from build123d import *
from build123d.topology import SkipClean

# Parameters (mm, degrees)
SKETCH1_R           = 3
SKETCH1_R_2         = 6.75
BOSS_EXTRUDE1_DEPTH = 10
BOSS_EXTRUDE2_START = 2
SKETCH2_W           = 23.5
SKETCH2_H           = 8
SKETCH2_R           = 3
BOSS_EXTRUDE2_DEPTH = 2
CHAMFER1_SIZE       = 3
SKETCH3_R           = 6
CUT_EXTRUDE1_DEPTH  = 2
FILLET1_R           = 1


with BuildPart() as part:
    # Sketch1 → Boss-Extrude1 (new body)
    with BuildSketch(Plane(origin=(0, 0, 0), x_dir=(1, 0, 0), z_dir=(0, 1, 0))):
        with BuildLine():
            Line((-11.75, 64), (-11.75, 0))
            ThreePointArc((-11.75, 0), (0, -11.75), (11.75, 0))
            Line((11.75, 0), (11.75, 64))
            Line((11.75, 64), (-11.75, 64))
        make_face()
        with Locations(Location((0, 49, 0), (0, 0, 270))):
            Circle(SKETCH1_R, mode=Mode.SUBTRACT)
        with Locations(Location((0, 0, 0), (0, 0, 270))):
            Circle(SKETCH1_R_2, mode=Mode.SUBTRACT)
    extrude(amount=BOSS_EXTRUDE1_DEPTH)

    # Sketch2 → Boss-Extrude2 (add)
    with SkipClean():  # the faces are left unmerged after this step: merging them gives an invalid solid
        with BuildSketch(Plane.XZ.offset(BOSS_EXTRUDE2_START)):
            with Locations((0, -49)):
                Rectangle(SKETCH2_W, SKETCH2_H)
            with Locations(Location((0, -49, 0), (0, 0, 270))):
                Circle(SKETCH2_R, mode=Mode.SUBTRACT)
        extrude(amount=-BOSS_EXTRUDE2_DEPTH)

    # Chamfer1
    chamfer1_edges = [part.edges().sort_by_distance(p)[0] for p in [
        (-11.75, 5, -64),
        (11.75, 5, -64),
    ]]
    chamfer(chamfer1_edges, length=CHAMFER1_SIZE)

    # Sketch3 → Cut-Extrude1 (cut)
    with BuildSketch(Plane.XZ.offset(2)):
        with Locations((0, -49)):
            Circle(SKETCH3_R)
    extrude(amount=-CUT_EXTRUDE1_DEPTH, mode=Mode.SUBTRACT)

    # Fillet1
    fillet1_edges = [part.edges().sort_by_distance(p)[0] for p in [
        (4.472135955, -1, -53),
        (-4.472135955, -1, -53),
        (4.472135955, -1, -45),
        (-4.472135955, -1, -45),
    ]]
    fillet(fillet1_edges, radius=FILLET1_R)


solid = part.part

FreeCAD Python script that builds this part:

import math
import FreeCAD as App
import Part
import Sketcher

V = App.Vector
Q = App.Units.Quantity


def edges_at(feature, points):
    """Names of the edges that pass closest to the given points."""
    edges = feature.Shape.Edges
    near = lambda p: min(range(len(edges)), key=lambda i: edges[i].distToShape(Part.Vertex(*p))[0])
    return sorted({f"Edge{near(p) + 1}" for p in points})


def add_polygon(sketch, points):
    """Adds a closed chain of lines whose ends are joined by coincident constraints."""
    first, n = sketch.GeometryCount, len(points)
    for a, b in zip(points, points[1:] + points[:1]):
        sketch.addGeometry(Part.LineSegment(App.Vector(*a, 0), App.Vector(*b, 0)), False)
    for i in range(n):
        sketch.addConstraint(Sketcher.Constraint("Coincident", first + i, 2, first + (i + 1) % n, 1))

doc = App.newDocument("Part")
body = doc.addObject("PartDesign::Body", "Body")

# Sketch on XZ plane
sketch1 = body.newObject("Sketcher::SketchObject", "Sketch")
sketch1.AttachmentSupport = (doc.getObject("XZ_Plane"), [""])
sketch1.MapMode = "FlatFace"
sketch1.addGeometry([
    Part.LineSegment(V(-11.8, -64, 0), V(-11.8, 0, 0)),  # 0
    Part.ArcOfCircle(Part.Circle(V(0, 0, 0), V(0, 0, 1), 11.8), math.radians(0), math.radians(180)),  # 1
    Part.LineSegment(V(11.8, 0, 0), V(11.8, -64, 0)),  # 2
    Part.LineSegment(V(11.8, -64, 0), V(-11.8, -64, 0)),  # 3
    Part.Circle(V(0, 0, 0), V(0, 0, 1), 6.8),  # 4
    Part.Circle(V(0, -49, 0), V(0, 0, 1), 3),  # 5
], False)
sketch1.addConstraint([
    Sketcher.Constraint("Tangent", 0, 2, 1, 2),
    Sketcher.Constraint("Tangent", 1, 1, 2, 1),
    Sketcher.Constraint("Coincident", 2, 2, 3, 1),
    Sketcher.Constraint("Coincident", 3, 2, 0, 1),
    Sketcher.Constraint("Vertical", 0),
    Sketcher.Constraint("Vertical", 2),
    Sketcher.Constraint("Horizontal", 3),
    Sketcher.Constraint("Coincident", 1, 3, -1, 1),
    Sketcher.Constraint("Coincident", 4, 3, -1, 1),
    Sketcher.Constraint("PointOnObject", 5, 3, -2),
    Sketcher.Constraint("Diameter", 5, Q("6 mm")),
    Sketcher.Constraint("Diameter", 4, Q("13.5 mm")),
    Sketcher.Constraint("DistanceY", 0, 1, 0, 2, Q("64 mm")),
    Sketcher.Constraint("Radius", 1, Q("11.75 mm")),
    Sketcher.Constraint("DistanceY", 5, 3, -1, 1, Q("49 mm")),
])
pad1 = body.newObject("PartDesign::Pad", "Pad")
pad1.Profile = sketch1
pad1.Length = 10
pad1.Reversed = True

# Sketch on XZ plane
sketch2 = body.newObject("Sketcher::SketchObject", "Sketch001")
sketch2.AttachmentSupport = (doc.getObject("XZ_Plane"), [""])
sketch2.MapMode = "FlatFace"
sketch2.AttachmentOffset = App.Placement(V(0, 0, 2), App.Rotation())
add_polygon(sketch2, [(-11.8, -45), (-11.8, -53), (11.8, -53), (11.8, -45)])  # lines 0-3
sketch2.addGeometry(Part.Circle(V(0, -49, 0), V(0, 0, 1), 3), False)  # 4
sketch2.addConstraint([
    Sketcher.Constraint("Vertical", 0),
    Sketcher.Constraint("Horizontal", 1),
    Sketcher.Constraint("Vertical", 2),
    Sketcher.Constraint("Horizontal", 3),
    Sketcher.Constraint("PointOnObject", 4, 3, -2),
    Sketcher.Constraint("Diameter", 4, Q("6 mm")),
    Sketcher.Constraint("DistanceY", 0, 2, 0, 1, Q("8 mm")),
    Sketcher.Constraint("DistanceX", 1, 1, 1, 2, Q("23.5 mm")),
    Sketcher.Constraint("DistanceY", 4, 3, -1, 1, Q("49 mm")),
    Sketcher.Constraint("DistanceY", 0, 2, -1, 1, Q("53 mm")),
    Sketcher.Constraint("DistanceX", 0, 2, -1, 1, Q("11.75 mm")),
])
pad2 = body.newObject("PartDesign::Pad", "Pad001")
pad2.Profile = sketch2
pad2.Length = 2
pad2.Reversed = True
doc.recompute()

chamfer = body.newObject("PartDesign::Chamfer", "Chamfer")
chamfer.Base = (pad2, edges_at(pad2, [(-11.75, 5, -64), (11.75, 5, -64)]))
chamfer.Size = 3

# Sketch on XZ plane
sketch3 = body.newObject("Sketcher::SketchObject", "Sketch002")
sketch3.AttachmentSupport = (doc.getObject("XZ_Plane"), [""])
sketch3.MapMode = "FlatFace"
sketch3.AttachmentOffset = App.Placement(V(0, 0, 2), App.Rotation())
sketch3.addGeometry(Part.Circle(V(0, -49, 0), V(0, 0, 1), 6), False)
sketch3.addConstraint([
    Sketcher.Constraint("PointOnObject", 0, 3, -2),
    Sketcher.Constraint("Diameter", 0, Q("12 mm")),
    Sketcher.Constraint("DistanceY", 0, 3, -1, 1, Q("49 mm")),
])
pocket1 = body.newObject("PartDesign::Pocket", "Pocket")
pocket1.Profile = sketch3
pocket1.Length = 2
doc.recompute()

fillet = body.newObject("PartDesign::Fillet", "Fillet")
fillet.Base = (pocket1, edges_at(pocket1, [
    (4.472, -1, -53),
    (-4.472, -1, -53),
    (4.472, -1, -45),
    (-4.472, -1, -45),
]))
fillet.Radius = 1

doc.recompute()
